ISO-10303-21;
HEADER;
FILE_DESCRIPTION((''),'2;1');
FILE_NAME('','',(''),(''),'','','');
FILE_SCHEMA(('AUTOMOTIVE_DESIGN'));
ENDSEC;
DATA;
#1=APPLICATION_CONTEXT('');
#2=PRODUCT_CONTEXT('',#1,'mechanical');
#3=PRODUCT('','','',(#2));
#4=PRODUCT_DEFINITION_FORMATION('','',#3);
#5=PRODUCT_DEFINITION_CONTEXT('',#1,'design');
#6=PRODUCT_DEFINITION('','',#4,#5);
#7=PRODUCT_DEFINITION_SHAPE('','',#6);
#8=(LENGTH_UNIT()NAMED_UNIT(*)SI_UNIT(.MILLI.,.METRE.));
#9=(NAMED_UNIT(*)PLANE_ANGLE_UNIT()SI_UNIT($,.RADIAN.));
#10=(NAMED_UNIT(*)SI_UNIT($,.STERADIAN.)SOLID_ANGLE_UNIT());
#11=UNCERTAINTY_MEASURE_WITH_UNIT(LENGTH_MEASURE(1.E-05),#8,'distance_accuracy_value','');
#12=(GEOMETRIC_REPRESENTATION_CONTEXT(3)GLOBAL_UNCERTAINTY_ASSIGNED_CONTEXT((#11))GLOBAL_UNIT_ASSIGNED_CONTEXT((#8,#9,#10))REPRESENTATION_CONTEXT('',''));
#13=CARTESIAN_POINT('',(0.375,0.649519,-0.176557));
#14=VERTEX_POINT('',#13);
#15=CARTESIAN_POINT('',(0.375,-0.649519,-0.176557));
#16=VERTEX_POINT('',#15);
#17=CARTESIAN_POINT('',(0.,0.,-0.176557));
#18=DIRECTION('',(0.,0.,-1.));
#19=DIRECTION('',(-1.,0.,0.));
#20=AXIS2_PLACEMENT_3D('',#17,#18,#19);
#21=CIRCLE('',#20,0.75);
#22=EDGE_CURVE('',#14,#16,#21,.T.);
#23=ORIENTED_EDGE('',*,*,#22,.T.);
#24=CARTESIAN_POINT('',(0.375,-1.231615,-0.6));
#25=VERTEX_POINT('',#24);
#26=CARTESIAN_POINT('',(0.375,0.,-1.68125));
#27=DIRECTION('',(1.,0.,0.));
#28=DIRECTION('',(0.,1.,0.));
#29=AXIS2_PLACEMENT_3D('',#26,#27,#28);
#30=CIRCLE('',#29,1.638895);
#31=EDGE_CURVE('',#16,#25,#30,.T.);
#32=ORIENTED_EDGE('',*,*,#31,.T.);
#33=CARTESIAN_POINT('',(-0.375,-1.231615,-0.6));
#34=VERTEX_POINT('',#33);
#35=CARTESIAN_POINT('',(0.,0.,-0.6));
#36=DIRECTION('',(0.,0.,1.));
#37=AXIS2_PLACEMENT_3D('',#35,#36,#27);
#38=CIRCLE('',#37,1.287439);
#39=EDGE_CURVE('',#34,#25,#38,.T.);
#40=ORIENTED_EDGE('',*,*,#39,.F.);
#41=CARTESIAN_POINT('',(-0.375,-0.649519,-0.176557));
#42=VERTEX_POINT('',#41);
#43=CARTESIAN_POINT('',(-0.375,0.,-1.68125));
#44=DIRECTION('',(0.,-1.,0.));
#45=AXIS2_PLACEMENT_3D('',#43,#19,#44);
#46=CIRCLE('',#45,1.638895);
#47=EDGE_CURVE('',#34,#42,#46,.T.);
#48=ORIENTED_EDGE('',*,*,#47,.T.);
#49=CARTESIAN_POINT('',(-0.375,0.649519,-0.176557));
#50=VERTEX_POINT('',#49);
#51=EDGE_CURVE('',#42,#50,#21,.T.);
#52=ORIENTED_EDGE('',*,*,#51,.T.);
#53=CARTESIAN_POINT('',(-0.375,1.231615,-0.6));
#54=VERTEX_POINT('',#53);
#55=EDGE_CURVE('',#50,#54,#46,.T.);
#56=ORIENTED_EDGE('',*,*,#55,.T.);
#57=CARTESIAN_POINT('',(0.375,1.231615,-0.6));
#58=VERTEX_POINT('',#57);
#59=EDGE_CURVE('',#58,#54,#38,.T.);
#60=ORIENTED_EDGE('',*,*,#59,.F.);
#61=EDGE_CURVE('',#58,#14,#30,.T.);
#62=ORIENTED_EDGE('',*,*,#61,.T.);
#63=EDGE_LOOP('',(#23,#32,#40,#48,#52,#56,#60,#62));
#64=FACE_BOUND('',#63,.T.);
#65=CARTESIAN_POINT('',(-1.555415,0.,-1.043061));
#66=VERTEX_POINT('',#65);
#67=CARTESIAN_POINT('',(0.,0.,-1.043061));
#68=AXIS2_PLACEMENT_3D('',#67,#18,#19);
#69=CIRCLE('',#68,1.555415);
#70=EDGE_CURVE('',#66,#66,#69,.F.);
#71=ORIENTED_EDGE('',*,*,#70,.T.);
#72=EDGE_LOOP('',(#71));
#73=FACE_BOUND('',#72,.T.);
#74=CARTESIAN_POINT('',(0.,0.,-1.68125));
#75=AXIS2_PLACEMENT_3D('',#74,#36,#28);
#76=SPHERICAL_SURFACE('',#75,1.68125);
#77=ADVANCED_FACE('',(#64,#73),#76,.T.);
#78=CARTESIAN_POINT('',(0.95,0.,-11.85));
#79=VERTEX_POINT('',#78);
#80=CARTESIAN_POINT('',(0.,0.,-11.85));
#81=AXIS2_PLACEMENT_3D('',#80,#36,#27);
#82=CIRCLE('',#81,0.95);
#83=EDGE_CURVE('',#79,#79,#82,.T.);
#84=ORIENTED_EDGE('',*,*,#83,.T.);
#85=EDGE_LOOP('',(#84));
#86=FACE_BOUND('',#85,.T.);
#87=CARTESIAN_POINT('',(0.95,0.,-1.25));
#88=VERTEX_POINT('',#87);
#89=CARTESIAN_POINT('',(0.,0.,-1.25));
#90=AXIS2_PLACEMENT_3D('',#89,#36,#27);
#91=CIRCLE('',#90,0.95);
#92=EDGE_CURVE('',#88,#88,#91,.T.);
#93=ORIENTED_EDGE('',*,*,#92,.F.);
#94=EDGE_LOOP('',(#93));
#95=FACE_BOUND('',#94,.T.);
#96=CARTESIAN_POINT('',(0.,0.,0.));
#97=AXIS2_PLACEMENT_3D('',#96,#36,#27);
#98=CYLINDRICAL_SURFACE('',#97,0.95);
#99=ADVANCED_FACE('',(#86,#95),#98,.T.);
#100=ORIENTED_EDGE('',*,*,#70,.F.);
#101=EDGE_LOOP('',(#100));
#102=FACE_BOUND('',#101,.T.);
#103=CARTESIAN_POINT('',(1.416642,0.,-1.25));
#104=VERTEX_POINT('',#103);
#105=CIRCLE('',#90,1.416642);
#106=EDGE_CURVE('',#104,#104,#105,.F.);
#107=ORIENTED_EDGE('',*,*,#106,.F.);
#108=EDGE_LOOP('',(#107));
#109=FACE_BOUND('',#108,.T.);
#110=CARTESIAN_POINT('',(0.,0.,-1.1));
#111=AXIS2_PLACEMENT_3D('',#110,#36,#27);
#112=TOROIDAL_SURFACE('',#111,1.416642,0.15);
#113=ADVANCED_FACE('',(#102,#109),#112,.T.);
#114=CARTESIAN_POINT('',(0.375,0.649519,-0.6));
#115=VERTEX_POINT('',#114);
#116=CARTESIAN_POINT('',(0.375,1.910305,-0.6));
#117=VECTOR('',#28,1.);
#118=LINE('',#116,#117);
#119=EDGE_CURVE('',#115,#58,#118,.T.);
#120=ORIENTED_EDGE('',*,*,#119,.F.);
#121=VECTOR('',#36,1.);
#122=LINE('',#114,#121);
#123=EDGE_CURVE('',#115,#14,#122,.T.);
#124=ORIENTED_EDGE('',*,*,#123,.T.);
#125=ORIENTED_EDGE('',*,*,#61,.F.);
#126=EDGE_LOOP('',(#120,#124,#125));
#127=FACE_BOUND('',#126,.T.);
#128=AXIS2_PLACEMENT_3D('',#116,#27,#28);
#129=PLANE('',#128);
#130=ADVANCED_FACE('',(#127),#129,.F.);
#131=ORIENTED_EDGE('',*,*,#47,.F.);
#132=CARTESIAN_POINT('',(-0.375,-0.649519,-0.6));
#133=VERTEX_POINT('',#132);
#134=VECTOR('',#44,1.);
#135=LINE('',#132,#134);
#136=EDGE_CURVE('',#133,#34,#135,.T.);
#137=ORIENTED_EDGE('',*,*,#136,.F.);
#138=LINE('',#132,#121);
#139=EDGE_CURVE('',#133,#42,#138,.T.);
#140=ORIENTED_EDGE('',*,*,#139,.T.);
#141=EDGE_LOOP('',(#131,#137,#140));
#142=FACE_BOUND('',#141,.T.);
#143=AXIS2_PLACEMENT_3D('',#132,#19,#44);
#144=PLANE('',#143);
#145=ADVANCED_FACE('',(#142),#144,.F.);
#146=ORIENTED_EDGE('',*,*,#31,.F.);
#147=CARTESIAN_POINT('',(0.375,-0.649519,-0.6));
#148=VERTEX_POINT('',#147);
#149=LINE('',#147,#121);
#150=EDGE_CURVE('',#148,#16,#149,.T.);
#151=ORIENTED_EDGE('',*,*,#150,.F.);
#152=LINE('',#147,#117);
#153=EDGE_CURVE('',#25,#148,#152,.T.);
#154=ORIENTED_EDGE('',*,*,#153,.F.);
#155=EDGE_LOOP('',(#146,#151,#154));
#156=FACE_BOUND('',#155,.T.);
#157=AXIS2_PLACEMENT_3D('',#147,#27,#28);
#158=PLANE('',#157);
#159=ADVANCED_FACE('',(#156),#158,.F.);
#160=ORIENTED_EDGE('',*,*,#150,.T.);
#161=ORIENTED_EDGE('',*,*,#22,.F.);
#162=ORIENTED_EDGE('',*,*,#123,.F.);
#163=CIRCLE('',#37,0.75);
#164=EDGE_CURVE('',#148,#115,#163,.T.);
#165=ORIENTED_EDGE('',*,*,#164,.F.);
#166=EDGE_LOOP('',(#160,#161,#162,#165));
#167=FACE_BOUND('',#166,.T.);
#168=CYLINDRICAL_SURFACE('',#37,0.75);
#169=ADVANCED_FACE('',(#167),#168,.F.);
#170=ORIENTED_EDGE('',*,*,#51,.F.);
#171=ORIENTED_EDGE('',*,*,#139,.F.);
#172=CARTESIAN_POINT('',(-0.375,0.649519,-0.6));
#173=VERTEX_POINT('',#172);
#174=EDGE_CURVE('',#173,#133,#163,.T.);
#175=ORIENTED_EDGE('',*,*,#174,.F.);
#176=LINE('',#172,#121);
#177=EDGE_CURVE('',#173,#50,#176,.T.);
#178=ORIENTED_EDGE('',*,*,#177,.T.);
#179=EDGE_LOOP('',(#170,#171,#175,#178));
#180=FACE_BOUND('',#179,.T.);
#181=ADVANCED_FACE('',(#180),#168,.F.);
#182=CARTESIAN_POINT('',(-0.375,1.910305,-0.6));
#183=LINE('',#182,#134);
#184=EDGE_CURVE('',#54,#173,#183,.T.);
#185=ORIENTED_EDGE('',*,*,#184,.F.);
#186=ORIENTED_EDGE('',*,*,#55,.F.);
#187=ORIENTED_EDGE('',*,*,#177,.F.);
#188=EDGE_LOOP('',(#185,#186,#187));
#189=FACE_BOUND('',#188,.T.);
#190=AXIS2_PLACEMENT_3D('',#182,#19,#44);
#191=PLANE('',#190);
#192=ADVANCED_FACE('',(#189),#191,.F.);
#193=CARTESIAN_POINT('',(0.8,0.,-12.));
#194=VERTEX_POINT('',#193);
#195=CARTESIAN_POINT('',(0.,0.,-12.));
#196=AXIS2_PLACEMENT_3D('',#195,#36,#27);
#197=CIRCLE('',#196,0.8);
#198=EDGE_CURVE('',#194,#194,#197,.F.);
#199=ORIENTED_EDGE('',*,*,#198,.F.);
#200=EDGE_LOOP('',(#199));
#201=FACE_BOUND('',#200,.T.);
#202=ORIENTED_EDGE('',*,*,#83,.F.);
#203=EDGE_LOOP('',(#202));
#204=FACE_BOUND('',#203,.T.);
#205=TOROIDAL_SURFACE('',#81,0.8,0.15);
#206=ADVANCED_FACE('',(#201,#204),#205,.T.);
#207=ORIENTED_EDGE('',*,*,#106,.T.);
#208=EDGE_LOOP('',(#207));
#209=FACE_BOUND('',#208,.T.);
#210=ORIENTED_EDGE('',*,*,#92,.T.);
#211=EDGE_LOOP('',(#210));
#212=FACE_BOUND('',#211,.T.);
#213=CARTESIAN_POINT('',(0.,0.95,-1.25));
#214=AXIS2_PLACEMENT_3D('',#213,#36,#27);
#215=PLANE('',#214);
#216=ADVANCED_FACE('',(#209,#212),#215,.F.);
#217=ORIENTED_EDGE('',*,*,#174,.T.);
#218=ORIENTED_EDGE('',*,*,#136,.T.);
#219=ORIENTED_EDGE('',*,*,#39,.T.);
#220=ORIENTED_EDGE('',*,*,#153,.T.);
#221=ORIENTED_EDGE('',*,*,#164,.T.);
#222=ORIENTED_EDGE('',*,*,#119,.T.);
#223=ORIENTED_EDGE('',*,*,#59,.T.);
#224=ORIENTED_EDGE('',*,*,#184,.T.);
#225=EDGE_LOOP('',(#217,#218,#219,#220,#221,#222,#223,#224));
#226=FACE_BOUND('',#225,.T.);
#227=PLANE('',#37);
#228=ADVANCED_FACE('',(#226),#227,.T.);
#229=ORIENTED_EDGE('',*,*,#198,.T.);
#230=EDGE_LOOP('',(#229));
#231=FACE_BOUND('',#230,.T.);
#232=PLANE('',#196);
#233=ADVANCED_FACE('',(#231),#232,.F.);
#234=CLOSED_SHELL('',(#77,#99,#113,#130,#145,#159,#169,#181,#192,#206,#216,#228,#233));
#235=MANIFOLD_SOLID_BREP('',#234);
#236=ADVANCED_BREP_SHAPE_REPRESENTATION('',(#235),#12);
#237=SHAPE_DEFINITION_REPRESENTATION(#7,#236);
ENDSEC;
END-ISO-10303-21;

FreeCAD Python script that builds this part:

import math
import FreeCAD as App
import Part
import Sketcher


def edges_at(feature, points):
    """Names of the edges that pass closest to the given points."""
    edges = feature.Shape.Edges
    near = lambda p: min(range(len(edges)), key=lambda i: edges[i].distToShape(Part.Vertex(*p))[0])
    return sorted({f"Edge{near(p) + 1}" for p in points})

doc = App.newDocument("Part")
body = doc.addObject("PartDesign::Body", "Body")

sketch1 = body.newObject("Sketcher::SketchObject", "Sketch")
sketch1.AttachmentSupport = (doc.getObject("YZ_Plane"), [""])
sketch1.MapMode = "FlatFace"
sketch1.addGeometry(Part.LineSegment(App.Vector(0, 0, 0), App.Vector(0, -12, 0)), False)
sketch1.addGeometry(Part.LineSegment(App.Vector(0, -12, 0), App.Vector(0.9, -12, 0)), False)
sketch1.addGeometry(Part.LineSegment(App.Vector(0.9, -12, 0), App.Vector(0.9, -1.2, 0)), False)
sketch1.addGeometry(Part.LineSegment(App.Vector(0.9, -1.2, 0), App.Vector(1.6, -1.2, 0)), False)
sketch1.addGeometry(Part.ArcOfCircle(Part.Circle(App.Vector(0, -1.7, 0), App.Vector(0, 0, 1), 1.7), math.radians(15), math.radians(90)), False)
sketch1.addConstraint(Sketcher.Constraint("Coincident", 0, 2, 1, 1))
sketch1.addConstraint(Sketcher.Constraint("Coincident", 1, 2, 2, 1))
sketch1.addConstraint(Sketcher.Constraint("Coincident", 2, 2, 3, 1))
sketch1.addConstraint(Sketcher.Constraint("Coincident", 3, 2, 4, 1))
sketch1.addConstraint(Sketcher.Constraint("Coincident", 4, 2, 0, 1))
sketch1.addConstraint(Sketcher.Constraint("Vertical", 0))
sketch1.addConstraint(Sketcher.Constraint("Horizontal", 1))
sketch1.addConstraint(Sketcher.Constraint("Vertical", 2))
sketch1.addConstraint(Sketcher.Constraint("Horizontal", 3))
sketch1.addConstraint(Sketcher.Constraint("Coincident", 4, 2, -1, 1))
sketch1.addConstraint(Sketcher.Constraint("PointOnObject", 4, 3, -2))
sketch1.addConstraint(Sketcher.Constraint("DistanceY", 0, 2, 0, 1, 12.0))
sketch1.addConstraint(Sketcher.Constraint("DistanceX", 1, 1, 1, 2, 0.95))
sketch1.addConstraint(Sketcher.Constraint("DistanceY", 2, 1, 2, 2, 10.75))
sketch1.addConstraint(Sketcher.Constraint("DistanceX", 3, 1, 3, 2, 0.675))
revolution = body.newObject("PartDesign::Revolution", "Revolution")
revolution.Profile = sketch1
revolution.ReferenceAxis = (sketch1, ["V_Axis"])
revolution.Angle = 360

sketch2 = body.newObject("Sketcher::SketchObject", "Sketch001")
sketch2.AttachmentSupport = (doc.getObject("XY_Plane"), [""])
sketch2.MapMode = "FlatFace"
sketch2.addGeometry(Part.LineSegment(App.Vector(0.4, -1.9, 0), App.Vector(0.4, -0.6, 0)), False)
sketch2.addGeometry(Part.ArcOfCircle(Part.Circle(App.Vector(0, 0, 0), App.Vector(0, 0, 1), 0.8), math.radians(-60), math.radians(60)), False)
sketch2.addGeometry(Part.LineSegment(App.Vector(0.4, 0.6, 0), App.Vector(0.4, 1.9, 0)), False)
sketch2.addGeometry(Part.LineSegment(App.Vector(0.4, 1.9, 0), App.Vector(-0.4, 1.9, 0)), False)
sketch2.addGeometry(Part.LineSegment(App.Vector(-0.4, 1.9, 0), App.Vector(-0.4, 0.6, 0)), False)
sketch2.addGeometry(Part.ArcOfCircle(Part.Circle(App.Vector(0, 0, 0), App.Vector(0, 0, 1), 0.8), math.radians(120), math.radians(240)), False)
sketch2.addGeometry(Part.LineSegment(App.Vector(-0.4, -0.6, 0), App.Vector(-0.4, -1.9, 0)), False)
sketch2.addGeometry(Part.LineSegment(App.Vector(-0.4, -1.9, 0), App.Vector(0.4, -1.9, 0)), False)
sketch2.addConstraint(Sketcher.Constraint("Coincident", 0, 2, 1, 1))
sketch2.addConstraint(Sketcher.Constraint("Coincident", 1, 2, 2, 1))
sketch2.addConstraint(Sketcher.Constraint("Coincident", 2, 2, 3, 1))
sketch2.addConstraint(Sketcher.Constraint("Coincident", 3, 2, 4, 1))
sketch2.addConstraint(Sketcher.Constraint("Coincident", 4, 2, 5, 1))
sketch2.addConstraint(Sketcher.Constraint("Coincident", 5, 2, 6, 1))
sketch2.addConstraint(Sketcher.Constraint("Coincident", 6, 2, 7, 1))
sketch2.addConstraint(Sketcher.Constraint("Coincident", 7, 2, 0, 1))
sketch2.addConstraint(Sketcher.Constraint("Vertical", 0))
sketch2.addConstraint(Sketcher.Constraint("Vertical", 2))
sketch2.addConstraint(Sketcher.Constraint("Horizontal", 3))
sketch2.addConstraint(Sketcher.Constraint("Vertical", 4))
sketch2.addConstraint(Sketcher.Constraint("Vertical", 6))
sketch2.addConstraint(Sketcher.Constraint("Horizontal", 7))
sketch2.addConstraint(Sketcher.Constraint("Coincident", 1, 3, -1, 1))
sketch2.addConstraint(Sketcher.Constraint("Coincident", 5, 3, -1, 1))
sketch2.addConstraint(Sketcher.Constraint("Equal", 1, 5))
sketch2.addConstraint(Sketcher.Constraint("Symmetric", 2, 2, 6, 2, -1, 1))
sketch2.addConstraint(Sketcher.Constraint("Horizontal", 1, 2, 4, 2))
sketch2.addConstraint(Sketcher.Constraint("Horizontal", 0, 2, 5, 2))
sketch2.addConstraint(Sketcher.Constraint("Radius", 1, 0.75))
sketch2.addConstraint(Sketcher.Constraint("DistanceX", 3, 2, 3, 1, 0.75))
sketch2.addConstraint(Sketcher.Constraint("DistanceY", 0, 1, 0, 2, 1.260786))
pocket1 = body.newObject("PartDesign::Pocket", "Pocket")
pocket1.Profile = sketch2
pocket1.Length = 0.6
doc.recompute()

fillet = body.newObject("PartDesign::Fillet", "Fillet")
fillet.Base = (pocket1, edges_at(pocket1, [(0, -1.625, -1.25), (0, -0.95, -12)]))
fillet.Radius = 0.15

doc.recompute()
